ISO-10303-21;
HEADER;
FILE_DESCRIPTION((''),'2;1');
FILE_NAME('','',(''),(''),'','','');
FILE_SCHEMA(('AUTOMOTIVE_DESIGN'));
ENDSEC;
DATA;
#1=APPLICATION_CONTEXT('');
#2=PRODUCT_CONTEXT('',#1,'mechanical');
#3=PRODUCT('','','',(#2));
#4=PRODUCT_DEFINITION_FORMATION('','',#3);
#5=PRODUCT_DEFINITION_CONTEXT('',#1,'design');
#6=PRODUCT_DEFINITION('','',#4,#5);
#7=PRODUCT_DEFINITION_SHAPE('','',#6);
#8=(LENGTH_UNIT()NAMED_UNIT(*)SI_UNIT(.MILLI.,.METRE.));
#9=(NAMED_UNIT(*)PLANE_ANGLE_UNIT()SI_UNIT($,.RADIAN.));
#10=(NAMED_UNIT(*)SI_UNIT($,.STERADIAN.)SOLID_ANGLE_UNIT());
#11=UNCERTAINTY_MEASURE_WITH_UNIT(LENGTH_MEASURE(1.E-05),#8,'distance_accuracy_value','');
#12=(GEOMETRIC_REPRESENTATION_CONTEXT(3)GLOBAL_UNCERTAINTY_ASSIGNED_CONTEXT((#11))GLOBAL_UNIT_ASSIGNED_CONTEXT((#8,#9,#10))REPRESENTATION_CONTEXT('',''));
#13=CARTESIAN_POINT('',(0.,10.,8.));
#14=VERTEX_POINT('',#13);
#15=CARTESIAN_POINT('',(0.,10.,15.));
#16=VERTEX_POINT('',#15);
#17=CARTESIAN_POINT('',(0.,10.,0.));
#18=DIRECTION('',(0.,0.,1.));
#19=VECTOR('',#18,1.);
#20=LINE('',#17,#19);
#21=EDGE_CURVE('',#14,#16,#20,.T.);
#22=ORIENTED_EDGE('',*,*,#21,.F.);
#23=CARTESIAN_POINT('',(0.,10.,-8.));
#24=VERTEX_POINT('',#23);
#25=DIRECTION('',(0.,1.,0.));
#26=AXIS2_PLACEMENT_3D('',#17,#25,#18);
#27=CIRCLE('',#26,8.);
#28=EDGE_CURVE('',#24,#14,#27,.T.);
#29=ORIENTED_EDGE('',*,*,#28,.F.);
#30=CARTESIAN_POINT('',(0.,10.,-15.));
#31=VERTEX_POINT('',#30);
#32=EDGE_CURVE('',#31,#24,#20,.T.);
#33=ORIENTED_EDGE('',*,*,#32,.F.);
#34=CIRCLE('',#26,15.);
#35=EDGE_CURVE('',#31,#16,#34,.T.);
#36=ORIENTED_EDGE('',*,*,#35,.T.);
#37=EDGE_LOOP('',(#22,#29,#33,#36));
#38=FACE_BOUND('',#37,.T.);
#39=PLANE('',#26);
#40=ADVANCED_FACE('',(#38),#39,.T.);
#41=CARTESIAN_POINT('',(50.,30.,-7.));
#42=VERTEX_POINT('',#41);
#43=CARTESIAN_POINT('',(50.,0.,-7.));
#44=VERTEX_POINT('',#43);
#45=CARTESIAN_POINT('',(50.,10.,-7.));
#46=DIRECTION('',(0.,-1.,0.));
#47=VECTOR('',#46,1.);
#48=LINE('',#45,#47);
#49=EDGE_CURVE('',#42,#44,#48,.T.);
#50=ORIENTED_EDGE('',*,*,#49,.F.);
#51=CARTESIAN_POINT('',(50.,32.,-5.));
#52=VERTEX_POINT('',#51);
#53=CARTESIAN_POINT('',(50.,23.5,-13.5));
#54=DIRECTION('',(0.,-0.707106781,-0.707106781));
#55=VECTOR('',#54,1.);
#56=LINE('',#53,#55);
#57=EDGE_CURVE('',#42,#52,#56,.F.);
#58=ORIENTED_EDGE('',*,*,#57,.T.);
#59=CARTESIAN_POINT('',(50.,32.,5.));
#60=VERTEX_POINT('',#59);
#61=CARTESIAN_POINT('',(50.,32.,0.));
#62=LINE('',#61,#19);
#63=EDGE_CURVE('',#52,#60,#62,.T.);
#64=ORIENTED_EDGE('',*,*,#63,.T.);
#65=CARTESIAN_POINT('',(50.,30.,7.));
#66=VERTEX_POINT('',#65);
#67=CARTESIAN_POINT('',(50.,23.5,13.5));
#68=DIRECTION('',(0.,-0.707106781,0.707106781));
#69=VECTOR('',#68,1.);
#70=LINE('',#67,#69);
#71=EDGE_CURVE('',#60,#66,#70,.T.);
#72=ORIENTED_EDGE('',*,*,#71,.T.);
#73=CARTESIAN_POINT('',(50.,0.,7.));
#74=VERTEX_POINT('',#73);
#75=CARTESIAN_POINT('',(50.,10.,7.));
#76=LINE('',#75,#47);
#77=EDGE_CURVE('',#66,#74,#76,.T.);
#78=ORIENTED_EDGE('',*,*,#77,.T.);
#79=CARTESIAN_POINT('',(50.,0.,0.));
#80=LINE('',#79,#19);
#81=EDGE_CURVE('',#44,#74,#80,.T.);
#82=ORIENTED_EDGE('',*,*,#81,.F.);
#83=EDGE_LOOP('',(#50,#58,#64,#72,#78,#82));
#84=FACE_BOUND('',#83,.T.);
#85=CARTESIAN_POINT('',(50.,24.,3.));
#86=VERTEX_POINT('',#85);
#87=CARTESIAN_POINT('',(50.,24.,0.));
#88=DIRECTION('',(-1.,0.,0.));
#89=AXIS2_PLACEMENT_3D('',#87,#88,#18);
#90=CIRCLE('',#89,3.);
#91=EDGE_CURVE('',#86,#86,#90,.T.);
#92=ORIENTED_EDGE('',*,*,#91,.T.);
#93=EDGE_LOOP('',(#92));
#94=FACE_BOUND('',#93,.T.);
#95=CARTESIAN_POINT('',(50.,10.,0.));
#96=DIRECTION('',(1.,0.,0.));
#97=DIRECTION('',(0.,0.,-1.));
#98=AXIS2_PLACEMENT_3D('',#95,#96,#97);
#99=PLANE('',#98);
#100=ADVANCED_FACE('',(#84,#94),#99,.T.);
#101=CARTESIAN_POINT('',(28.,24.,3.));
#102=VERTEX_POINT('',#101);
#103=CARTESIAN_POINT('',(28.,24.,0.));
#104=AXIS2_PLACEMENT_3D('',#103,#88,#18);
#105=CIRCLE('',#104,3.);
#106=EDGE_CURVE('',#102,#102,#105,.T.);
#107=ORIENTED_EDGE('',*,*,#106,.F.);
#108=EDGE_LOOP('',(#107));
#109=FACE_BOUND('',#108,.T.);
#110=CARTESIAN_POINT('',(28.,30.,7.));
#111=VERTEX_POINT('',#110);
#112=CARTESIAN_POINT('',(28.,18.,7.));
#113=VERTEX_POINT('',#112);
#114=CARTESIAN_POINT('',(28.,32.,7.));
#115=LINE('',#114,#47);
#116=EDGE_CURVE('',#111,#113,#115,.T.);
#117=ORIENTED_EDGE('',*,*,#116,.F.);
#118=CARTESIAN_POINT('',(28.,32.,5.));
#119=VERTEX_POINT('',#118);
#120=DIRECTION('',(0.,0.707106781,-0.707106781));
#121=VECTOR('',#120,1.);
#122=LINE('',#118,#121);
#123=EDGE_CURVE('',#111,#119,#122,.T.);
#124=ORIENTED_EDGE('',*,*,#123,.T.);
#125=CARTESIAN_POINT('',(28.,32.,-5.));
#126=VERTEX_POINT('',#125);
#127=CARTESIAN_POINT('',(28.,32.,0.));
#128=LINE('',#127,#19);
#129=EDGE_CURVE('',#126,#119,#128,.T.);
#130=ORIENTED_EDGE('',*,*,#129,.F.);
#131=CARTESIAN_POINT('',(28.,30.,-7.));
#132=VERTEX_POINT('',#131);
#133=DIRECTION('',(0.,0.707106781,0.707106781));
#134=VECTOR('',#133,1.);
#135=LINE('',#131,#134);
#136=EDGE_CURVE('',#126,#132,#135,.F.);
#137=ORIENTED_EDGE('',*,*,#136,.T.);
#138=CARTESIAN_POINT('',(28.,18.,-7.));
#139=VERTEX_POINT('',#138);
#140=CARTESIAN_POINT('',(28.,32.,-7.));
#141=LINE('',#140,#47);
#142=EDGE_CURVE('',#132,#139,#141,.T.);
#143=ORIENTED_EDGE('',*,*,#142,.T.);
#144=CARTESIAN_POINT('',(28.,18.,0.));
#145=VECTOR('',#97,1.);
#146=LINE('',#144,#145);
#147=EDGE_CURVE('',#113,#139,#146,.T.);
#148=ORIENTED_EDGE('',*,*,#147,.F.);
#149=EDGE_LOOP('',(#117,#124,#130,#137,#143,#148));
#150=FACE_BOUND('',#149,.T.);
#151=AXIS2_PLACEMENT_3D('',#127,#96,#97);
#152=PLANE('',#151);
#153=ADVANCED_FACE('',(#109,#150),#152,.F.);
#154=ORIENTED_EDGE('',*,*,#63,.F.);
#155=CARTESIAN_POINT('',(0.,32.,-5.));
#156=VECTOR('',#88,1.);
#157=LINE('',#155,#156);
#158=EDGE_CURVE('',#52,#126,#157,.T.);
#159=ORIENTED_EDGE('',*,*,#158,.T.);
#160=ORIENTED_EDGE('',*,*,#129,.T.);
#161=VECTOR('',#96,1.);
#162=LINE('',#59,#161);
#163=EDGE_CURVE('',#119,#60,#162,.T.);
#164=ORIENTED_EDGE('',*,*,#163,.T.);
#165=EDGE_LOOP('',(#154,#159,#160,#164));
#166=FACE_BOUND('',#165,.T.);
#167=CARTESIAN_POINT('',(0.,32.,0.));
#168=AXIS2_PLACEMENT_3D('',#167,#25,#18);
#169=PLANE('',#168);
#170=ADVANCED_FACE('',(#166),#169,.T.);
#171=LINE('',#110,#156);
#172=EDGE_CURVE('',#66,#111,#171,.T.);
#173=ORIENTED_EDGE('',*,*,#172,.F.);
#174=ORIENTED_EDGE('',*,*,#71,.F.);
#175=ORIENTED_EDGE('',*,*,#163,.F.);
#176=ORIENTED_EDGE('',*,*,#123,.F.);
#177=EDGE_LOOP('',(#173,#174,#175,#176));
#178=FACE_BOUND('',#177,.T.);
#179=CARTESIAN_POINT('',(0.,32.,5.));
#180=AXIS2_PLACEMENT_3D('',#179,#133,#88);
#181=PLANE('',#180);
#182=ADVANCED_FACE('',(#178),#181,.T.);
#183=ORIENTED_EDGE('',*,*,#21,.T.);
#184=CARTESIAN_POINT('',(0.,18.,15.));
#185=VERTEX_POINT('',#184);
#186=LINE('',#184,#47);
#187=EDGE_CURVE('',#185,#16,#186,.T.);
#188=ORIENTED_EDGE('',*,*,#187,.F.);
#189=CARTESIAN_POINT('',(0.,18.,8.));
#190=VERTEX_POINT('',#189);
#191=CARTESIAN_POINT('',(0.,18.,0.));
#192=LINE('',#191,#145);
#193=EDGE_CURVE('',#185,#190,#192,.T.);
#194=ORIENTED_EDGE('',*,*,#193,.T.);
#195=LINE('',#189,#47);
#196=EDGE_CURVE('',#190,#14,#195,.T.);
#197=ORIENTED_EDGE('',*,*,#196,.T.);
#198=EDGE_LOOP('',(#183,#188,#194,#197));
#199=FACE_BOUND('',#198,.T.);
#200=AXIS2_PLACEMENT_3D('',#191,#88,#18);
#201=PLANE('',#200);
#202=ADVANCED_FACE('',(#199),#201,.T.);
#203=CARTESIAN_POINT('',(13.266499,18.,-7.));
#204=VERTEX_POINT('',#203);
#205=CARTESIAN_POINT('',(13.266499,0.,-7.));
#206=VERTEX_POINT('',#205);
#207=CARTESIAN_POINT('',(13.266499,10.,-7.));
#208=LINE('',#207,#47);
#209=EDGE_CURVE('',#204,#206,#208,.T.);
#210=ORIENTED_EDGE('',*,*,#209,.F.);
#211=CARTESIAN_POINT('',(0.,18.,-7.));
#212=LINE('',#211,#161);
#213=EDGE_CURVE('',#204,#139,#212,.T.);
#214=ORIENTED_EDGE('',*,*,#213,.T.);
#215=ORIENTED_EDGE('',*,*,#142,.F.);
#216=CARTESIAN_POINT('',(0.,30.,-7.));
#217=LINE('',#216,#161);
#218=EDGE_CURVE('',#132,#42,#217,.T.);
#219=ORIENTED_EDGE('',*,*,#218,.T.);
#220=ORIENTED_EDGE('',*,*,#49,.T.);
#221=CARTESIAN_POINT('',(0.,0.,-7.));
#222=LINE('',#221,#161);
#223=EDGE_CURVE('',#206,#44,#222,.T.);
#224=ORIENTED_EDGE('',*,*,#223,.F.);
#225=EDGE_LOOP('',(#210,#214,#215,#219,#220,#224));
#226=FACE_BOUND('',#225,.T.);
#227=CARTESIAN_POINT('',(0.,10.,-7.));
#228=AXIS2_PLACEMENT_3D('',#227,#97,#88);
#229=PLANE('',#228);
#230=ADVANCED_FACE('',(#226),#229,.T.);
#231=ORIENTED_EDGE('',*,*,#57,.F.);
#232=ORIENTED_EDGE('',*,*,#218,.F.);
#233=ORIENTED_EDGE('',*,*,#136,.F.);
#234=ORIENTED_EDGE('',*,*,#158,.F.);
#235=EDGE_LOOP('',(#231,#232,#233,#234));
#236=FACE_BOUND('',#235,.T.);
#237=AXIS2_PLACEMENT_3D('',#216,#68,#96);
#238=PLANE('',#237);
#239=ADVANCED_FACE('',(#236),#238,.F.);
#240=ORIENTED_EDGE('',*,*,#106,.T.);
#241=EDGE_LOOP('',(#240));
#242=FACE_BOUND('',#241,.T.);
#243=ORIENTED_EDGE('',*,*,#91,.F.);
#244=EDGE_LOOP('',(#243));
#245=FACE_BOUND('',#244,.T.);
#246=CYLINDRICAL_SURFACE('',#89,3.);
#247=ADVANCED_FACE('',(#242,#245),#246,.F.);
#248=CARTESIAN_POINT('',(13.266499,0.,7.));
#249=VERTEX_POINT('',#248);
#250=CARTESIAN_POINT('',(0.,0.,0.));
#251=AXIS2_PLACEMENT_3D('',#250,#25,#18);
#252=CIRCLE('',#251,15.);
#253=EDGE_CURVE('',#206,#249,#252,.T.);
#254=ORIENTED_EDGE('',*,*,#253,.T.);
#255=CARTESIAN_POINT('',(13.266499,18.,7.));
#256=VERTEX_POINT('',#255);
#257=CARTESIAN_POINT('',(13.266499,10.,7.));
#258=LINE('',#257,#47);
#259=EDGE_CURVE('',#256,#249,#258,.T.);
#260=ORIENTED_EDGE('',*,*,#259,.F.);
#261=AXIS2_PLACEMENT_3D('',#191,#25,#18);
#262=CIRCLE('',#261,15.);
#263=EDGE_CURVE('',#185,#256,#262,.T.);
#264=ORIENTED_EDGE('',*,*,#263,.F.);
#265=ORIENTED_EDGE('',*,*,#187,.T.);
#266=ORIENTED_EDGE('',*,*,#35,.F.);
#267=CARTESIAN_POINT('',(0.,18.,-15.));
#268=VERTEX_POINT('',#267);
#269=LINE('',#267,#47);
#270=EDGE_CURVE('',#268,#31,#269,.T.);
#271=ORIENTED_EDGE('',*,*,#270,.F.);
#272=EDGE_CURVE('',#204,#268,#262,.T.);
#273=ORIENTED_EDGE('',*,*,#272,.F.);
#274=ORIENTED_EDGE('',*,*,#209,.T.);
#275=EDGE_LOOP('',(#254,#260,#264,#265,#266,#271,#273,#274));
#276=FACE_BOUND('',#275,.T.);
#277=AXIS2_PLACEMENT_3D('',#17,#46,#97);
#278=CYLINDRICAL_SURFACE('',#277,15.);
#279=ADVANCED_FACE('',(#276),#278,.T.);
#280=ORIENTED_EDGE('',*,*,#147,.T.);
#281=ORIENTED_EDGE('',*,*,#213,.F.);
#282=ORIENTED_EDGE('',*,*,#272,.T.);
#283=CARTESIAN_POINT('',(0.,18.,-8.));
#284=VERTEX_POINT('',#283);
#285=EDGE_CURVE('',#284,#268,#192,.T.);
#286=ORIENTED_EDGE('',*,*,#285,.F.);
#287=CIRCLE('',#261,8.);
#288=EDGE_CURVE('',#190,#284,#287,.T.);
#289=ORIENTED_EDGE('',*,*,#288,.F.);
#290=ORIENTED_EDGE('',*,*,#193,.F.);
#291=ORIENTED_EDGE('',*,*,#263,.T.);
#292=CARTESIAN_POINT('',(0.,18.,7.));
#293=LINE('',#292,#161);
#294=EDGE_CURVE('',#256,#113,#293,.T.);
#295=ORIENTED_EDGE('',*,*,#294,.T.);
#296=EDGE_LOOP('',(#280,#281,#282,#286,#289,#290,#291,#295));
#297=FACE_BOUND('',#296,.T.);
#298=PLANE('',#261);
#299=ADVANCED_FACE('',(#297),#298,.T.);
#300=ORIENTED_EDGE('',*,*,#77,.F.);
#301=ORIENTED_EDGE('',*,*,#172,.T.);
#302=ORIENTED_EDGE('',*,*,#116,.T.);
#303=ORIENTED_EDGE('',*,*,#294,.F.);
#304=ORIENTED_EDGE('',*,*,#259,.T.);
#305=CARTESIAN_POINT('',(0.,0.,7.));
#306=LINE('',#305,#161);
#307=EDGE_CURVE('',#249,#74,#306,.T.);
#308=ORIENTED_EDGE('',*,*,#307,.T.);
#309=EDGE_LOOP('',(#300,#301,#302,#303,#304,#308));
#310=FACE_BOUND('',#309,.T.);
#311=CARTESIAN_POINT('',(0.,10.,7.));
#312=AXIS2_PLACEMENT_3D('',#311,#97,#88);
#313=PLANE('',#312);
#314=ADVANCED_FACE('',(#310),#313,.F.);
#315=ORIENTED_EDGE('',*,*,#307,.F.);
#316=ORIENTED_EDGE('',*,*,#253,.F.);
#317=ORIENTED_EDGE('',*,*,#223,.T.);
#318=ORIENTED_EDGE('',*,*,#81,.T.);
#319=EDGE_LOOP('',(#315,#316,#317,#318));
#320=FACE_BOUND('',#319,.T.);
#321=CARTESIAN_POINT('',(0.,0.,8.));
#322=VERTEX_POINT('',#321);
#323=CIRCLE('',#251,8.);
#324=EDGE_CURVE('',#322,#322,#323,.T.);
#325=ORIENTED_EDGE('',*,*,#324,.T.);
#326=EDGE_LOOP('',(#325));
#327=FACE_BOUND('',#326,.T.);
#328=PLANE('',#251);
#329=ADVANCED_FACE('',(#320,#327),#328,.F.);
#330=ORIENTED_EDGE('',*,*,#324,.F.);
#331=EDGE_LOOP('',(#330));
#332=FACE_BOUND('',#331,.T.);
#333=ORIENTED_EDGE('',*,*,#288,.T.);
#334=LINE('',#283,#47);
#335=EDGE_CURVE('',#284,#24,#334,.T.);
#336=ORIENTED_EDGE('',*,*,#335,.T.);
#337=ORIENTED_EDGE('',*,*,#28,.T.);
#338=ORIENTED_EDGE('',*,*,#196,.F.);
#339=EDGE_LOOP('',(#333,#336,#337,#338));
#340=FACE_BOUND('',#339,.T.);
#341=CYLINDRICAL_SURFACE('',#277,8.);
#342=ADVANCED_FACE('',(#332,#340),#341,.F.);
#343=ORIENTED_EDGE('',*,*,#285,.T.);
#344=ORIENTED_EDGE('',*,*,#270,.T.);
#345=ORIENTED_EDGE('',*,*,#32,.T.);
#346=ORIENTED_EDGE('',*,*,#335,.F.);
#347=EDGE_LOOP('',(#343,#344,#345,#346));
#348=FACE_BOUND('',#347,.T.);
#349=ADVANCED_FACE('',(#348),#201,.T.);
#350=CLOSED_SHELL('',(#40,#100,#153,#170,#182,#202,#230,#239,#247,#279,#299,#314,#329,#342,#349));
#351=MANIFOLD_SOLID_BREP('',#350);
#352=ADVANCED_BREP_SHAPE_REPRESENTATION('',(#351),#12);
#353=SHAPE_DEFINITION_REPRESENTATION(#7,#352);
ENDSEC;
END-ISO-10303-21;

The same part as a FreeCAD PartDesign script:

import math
import FreeCAD as App
import Part
import Sketcher
from FreeCAD import Vector
Q = App.Units.Quantity


def edges_at(feature, points):
    """Names of the edges that pass closest to the given points."""
    edges = feature.Shape.Edges
    near = lambda p: min(range(len(edges)), key=lambda i: edges[i].distToShape(Part.Vertex(*p))[0])
    return sorted({f"Edge{near(p) + 1}" for p in points})

doc = App.newDocument("Part")
body = doc.addObject("PartDesign::Body", "Body")

sketch1 = body.newObject("Sketcher::SketchObject", "Sketch")
sketch1.AttachmentSupport = (doc.getObject("XZ_Plane"), [""])
sketch1.MapMode = "FlatFace"
sketch1.addGeometry([
    Part.ArcOfCircle(Part.Circle(Vector(0, 0, 0), Vector(0, 0, 1), 15), math.radians(90), math.radians(270)),
    Part.ArcOfCircle(Part.Circle(Vector(0, 0, 0), Vector(0, 0, 1), 15), math.radians(28), math.radians(90)),
    Part.LineSegment(Vector(13, 7, 0), Vector(50, 7, 0)),
    Part.LineSegment(Vector(50, 7, 0), Vector(50, -7, 0)),
    Part.LineSegment(Vector(50, -7, 0), Vector(13, -7, 0)),
    Part.ArcOfCircle(Part.Circle(Vector(0, 0, 0), Vector(0, 0, 1), 15), math.radians(-90), math.radians(-28)),
    Part.ArcOfCircle(Part.Circle(Vector(0, 0, 0), Vector(0, 0, 1), 8), math.radians(90), math.radians(270)),
    Part.ArcOfCircle(Part.Circle(Vector(0, 0, 0), Vector(0, 0, 1), 8), math.radians(-90), math.radians(0)),
    Part.ArcOfCircle(Part.Circle(Vector(0, 0, 0), Vector(0, 0, 1), 8), math.radians(0), math.radians(90)),
], False)
sketch1.addConstraint([
    Sketcher.Constraint("Tangent", 0, 1, 1, 2),
    Sketcher.Constraint("Coincident", 1, 1, 2, 1),
    Sketcher.Constraint("Coincident", 2, 2, 3, 1),
    Sketcher.Constraint("Coincident", 3, 2, 4, 1),
    Sketcher.Constraint("Coincident", 4, 2, 5, 2),
    Sketcher.Constraint("Tangent", 5, 1, 0, 2),
    Sketcher.Constraint("Tangent", 6, 2, 7, 1),
    Sketcher.Constraint("Tangent", 7, 2, 8, 1),
    Sketcher.Constraint("Tangent", 8, 2, 6, 1),
    Sketcher.Constraint("Horizontal", 2),
    Sketcher.Constraint("Vertical", 3),
    Sketcher.Constraint("Horizontal", 4),
    Sketcher.Constraint("Coincident", 0, 3, -1, 1),
    Sketcher.Constraint("Coincident", 6, 3, -1, 1),
    Sketcher.Constraint("Equal", 0, 1),
    Sketcher.Constraint("Equal", 1, 5),
    Sketcher.Constraint("PointOnObject", 0, 1, -2),
    Sketcher.Constraint("PointOnObject", 5, 1, -2),
    Sketcher.Constraint("PointOnObject", 6, 2, -2),
    Sketcher.Constraint("PointOnObject", 7, 2, -1),
    Sketcher.Constraint("PointOnObject", 8, 2, -2),
    Sketcher.Constraint("Vertical", 1, 1, 4, 2),
    Sketcher.Constraint("Radius", 0, Q("15 mm")),
    Sketcher.Constraint("Radius", 6, Q("8 mm")),
    Sketcher.Constraint("DistanceY", 3, 2, 3, 1, Q("14 mm")),
    Sketcher.Constraint("DistanceX", -1, 1, 2, 2, Q("50 mm")),
])
pad1 = body.newObject("PartDesign::Pad", "Pad")
pad1.Profile = sketch1
pad1.Length = 10
pad1.Reversed = True

sketch2 = body.newObject("Sketcher::SketchObject", "Sketch001")
sketch2.AttachmentSupport = (doc.getObject("XZ_Plane"), [""])
sketch2.MapMode = "FlatFace"
sketch2.addGeometry([
    Part.ArcOfCircle(Part.Circle(Vector(0, 0, 0), Vector(0, 0, 1), 15), math.radians(-90), math.radians(-28)),
    Part.LineSegment(Vector(0, -15, 0), Vector(0, -8, 0)),
    Part.ArcOfCircle(Part.Circle(Vector(0, 0, 0), Vector(0, 0, 1), 8), math.radians(-90), math.radians(0)),
    Part.ArcOfCircle(Part.Circle(Vector(0, 0, 0), Vector(0, 0, 1), 8), math.radians(0), math.radians(90)),
    Part.LineSegment(Vector(0, 8, 0), Vector(0, 15, 0)),
    Part.ArcOfCircle(Part.Circle(Vector(0, 0, 0), Vector(0, 0, 1), 15), math.radians(28), math.radians(90)),
    Part.LineSegment(Vector(13, 7, 0), Vector(50, 7, 0)),
    Part.LineSegment(Vector(50, 7, 0), Vector(50, -7, 0)),
    Part.LineSegment(Vector(50, -7, 0), Vector(13, -7, 0)),
], False)
sketch2.addConstraint([
    Sketcher.Constraint("Coincident", 0, 1, 1, 1),
    Sketcher.Constraint("Coincident", 1, 2, 2, 1),
    Sketcher.Constraint("Tangent", 2, 2, 3, 1),
    Sketcher.Constraint("Coincident", 3, 2, 4, 1),
    Sketcher.Constraint("Coincident", 4, 2, 5, 2),
    Sketcher.Constraint("Coincident", 5, 1, 6, 1),
    Sketcher.Constraint("Coincident", 6, 2, 7, 1),
    Sketcher.Constraint("Coincident", 7, 2, 8, 1),
    Sketcher.Constraint("Coincident", 8, 2, 0, 2),
    Sketcher.Constraint("Vertical", 1),
    Sketcher.Constraint("Vertical", 4),
    Sketcher.Constraint("Horizontal", 6),
    Sketcher.Constraint("Vertical", 7),
    Sketcher.Constraint("Horizontal", 8),
    Sketcher.Constraint("Coincident", 0, 3, -1, 1),
    Sketcher.Constraint("Coincident", 2, 3, -1, 1),
    Sketcher.Constraint("Coincident", 5, 3, -1, 1),
    Sketcher.Constraint("Equal", 2, 3),
    Sketcher.Constraint("Equal", 0, 5),
    Sketcher.Constraint("PointOnObject", 0, 1, -2),
    Sketcher.Constraint("PointOnObject", 2, 2, -1),
    Sketcher.Constraint("PointOnObject", 3, 2, -2),
    Sketcher.Constraint("Vertical", 5, 1, 8, 2),
    Sketcher.Constraint("Radius", 0, Q("15 mm")),
    Sketcher.Constraint("Radius", 2, Q("8 mm")),
    Sketcher.Constraint("DistanceY", 7, 2, 7, 1, Q("14 mm")),
    Sketcher.Constraint("DistanceX", -1, 1, 6, 2, Q("50 mm")),
])
pad2 = body.newObject("PartDesign::Pad", "Pad001")
pad2.Profile = sketch2
pad2.Length = 18
pad2.Reversed = True

sketch3 = body.newObject("Sketcher::SketchObject", "Sketch002")
sketch3.AttachmentSupport = (doc.getObject("XZ_Plane"), [""])
sketch3.MapMode = "FlatFace"
sketch3.addGeometry([
    Part.LineSegment(Vector(28, -7, 0), Vector(28, 7, 0)),
    Part.LineSegment(Vector(28, 7, 0), Vector(50, 7, 0)),
    Part.LineSegment(Vector(50, 7, 0), Vector(50, -7, 0)),
    Part.LineSegment(Vector(50, -7, 0), Vector(28, -7, 0)),
], False)
sketch3.addConstraint([
    Sketcher.Constraint("Coincident", 0, 2, 1, 1),
    Sketcher.Constraint("Coincident", 1, 2, 2, 1),
    Sketcher.Constraint("Coincident", 2, 2, 3, 1),
    Sketcher.Constraint("Coincident", 3, 2, 0, 1),
    Sketcher.Constraint("Vertical", 0),
    Sketcher.Constraint("Horizontal", 1),
    Sketcher.Constraint("Vertical", 2),
    Sketcher.Constraint("Horizontal", 3),
    Sketcher.Constraint("DistanceX", 1, 1, 1, 2, Q("22 mm")),
    Sketcher.Constraint("DistanceY", 0, 1, 0, 2, Q("14 mm")),
    Sketcher.Constraint("DistanceX", -1, 1, 0, 2, Q("28 mm")),
    Sketcher.Constraint("DistanceY", -1, 1, 0, 2, Q("7 mm")),
])
pad3 = body.newObject("PartDesign::Pad", "Pad002")
pad3.Profile = sketch3
pad3.Length = 32
pad3.Reversed = True
doc.recompute()

chamfer = body.newObject("PartDesign::Chamfer", "Chamfer")
chamfer.Base = (pad3, edges_at(pad3, [(39, 32, -7), (39, 32, 7)]))
chamfer.Size = 2

sketch4 = body.newObject("Sketcher::SketchObject", "Sketch003")
sketch4.AttachmentSupport = (doc.getObject("YZ_Plane"), [""])
sketch4.MapMode = "FlatFace"
sketch4.AttachmentOffset = App.Placement(Vector(0, 0, 28), App.Rotation())
sketch4.addGeometry(Part.Circle(Vector(24, 0, 0), Vector(0, 0, 1), 3), False)
sketch4.addConstraint([
    Sketcher.Constraint("PointOnObject", 0, 3, -1),
    Sketcher.Constraint("Diameter", 0, Q("6 mm")),
    Sketcher.Constraint("DistanceX", -1, 1, 0, 3, Q("24 mm")),
])
pocket1 = body.newObject("PartDesign::Pocket", "Pocket")
pocket1.Profile = sketch4
pocket1.Type = "ThroughAll"
pocket1.Reversed = True

doc.recompute()
